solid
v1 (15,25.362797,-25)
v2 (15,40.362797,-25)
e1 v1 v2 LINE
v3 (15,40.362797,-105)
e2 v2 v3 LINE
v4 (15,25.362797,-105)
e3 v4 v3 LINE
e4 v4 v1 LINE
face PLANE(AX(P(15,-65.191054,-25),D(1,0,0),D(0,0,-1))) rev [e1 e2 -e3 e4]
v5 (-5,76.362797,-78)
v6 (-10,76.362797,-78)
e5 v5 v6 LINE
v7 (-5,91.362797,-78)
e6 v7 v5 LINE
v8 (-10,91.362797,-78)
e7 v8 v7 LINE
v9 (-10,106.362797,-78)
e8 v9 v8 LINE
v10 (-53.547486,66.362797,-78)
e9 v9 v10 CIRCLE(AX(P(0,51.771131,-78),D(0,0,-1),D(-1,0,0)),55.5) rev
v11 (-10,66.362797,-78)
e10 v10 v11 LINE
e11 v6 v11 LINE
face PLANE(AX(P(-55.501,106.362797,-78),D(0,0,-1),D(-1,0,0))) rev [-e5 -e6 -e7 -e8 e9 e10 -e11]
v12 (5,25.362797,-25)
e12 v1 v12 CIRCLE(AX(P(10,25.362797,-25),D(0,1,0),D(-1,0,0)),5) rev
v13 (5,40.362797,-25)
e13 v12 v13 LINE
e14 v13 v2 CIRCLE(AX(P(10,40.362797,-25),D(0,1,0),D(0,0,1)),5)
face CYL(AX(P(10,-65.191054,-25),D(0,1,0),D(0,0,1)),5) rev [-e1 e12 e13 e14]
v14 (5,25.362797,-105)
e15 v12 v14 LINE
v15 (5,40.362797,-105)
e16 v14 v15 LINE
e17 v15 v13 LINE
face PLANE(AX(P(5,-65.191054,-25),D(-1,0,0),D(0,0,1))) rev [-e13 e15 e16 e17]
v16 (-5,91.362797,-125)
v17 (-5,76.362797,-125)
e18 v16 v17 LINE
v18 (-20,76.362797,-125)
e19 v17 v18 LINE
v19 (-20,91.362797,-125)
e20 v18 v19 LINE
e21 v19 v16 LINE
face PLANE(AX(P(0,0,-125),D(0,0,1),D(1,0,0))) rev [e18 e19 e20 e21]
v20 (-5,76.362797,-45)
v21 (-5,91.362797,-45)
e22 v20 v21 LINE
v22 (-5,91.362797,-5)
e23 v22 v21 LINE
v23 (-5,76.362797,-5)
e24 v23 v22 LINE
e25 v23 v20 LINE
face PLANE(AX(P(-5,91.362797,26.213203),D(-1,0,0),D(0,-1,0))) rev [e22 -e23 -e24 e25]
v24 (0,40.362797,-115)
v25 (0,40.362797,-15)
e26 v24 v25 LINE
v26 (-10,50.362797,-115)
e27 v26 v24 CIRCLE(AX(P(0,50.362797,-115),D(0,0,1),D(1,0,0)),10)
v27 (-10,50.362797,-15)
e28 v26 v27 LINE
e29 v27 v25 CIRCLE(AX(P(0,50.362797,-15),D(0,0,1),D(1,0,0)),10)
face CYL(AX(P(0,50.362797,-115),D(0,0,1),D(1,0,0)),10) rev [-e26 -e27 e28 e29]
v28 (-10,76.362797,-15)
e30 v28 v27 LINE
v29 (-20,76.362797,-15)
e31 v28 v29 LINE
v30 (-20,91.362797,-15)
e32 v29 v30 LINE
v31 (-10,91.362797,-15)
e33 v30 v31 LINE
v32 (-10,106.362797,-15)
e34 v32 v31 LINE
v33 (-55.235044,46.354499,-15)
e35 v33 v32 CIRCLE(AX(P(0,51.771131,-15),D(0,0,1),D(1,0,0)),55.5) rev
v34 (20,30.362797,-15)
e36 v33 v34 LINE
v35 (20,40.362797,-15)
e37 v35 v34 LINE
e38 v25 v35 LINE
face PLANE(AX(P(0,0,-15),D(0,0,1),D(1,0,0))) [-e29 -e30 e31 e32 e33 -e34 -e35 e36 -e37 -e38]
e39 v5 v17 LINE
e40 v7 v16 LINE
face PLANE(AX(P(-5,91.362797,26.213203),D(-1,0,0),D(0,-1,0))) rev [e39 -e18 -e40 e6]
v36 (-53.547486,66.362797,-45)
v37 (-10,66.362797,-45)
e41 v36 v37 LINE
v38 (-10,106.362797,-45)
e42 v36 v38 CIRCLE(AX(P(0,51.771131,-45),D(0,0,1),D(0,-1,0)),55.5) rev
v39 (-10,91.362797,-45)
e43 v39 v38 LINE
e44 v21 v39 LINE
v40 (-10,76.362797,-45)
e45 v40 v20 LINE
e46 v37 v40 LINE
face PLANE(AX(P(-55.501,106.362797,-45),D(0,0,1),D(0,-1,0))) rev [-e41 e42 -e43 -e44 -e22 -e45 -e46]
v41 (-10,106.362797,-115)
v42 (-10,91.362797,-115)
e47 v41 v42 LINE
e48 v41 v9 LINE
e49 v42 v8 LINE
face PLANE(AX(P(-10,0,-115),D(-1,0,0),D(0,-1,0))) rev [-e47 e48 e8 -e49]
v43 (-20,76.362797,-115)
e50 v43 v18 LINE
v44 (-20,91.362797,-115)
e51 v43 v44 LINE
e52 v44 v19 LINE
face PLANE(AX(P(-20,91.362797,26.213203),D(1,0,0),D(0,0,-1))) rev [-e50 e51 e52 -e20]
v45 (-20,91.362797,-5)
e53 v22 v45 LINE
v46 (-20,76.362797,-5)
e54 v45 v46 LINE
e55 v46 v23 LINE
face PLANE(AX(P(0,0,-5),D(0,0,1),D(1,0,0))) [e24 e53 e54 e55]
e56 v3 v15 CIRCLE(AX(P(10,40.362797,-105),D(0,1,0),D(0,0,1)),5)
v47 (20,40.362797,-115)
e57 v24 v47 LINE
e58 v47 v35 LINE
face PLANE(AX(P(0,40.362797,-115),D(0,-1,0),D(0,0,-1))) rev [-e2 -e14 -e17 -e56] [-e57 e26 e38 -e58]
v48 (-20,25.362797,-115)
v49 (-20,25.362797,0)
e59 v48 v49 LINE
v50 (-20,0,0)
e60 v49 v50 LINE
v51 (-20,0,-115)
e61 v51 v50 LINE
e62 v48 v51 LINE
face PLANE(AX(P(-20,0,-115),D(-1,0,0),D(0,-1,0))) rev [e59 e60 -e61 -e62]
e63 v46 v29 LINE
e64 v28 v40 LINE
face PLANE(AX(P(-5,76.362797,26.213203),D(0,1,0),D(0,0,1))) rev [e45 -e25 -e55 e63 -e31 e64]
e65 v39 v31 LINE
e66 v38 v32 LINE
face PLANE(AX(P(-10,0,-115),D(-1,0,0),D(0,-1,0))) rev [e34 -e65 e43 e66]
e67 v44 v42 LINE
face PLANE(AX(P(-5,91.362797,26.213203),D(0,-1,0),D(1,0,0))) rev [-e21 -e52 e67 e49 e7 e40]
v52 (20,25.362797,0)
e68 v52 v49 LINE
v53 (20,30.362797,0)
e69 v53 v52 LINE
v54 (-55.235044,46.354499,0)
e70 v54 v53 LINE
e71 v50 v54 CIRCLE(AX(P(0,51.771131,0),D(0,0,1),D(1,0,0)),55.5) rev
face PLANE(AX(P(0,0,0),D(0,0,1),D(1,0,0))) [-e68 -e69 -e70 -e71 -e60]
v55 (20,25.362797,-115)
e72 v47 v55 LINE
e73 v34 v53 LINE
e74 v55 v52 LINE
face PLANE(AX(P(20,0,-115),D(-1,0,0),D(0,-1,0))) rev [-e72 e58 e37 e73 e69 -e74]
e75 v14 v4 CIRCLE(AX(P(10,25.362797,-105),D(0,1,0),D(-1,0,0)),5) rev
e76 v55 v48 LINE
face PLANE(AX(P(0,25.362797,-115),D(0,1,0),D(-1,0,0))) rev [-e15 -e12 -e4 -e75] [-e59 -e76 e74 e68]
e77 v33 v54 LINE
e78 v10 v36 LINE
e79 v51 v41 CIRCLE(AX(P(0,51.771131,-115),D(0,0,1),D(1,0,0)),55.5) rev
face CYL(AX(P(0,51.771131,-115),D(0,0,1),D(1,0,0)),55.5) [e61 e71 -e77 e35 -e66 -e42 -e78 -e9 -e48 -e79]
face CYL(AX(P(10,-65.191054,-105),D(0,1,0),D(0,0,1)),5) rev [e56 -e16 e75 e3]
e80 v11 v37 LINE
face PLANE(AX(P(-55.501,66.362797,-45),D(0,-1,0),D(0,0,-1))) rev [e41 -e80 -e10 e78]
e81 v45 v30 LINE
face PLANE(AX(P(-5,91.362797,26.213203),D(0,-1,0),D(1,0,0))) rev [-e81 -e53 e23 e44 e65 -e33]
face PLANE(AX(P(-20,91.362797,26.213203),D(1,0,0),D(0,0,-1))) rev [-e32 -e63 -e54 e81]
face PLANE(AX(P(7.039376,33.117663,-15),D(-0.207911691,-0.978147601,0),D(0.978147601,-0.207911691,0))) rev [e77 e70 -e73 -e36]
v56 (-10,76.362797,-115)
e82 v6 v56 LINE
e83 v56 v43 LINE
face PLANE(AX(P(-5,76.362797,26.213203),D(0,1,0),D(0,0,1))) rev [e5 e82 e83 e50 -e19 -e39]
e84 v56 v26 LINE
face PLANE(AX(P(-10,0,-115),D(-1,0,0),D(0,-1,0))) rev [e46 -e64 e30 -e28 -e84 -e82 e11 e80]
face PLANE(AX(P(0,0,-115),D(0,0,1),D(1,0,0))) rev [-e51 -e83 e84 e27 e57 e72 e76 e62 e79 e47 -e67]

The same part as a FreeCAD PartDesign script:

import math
import FreeCAD as App
import Part
import Sketcher

V = App.Vector
Q = App.Units.Quantity

doc = App.newDocument("Part")
body = doc.addObject("PartDesign::Body", "Body")

# Sketch on XY plane
sketch1 = doc.addObject("Sketcher::SketchObject", "Sketch")
body.addObject(sketch1)
sketch1.AttachmentSupport = (doc.XY_Plane, [""])
sketch1.MapMode = "FlatFace"
sketch1.addGeometry([
    Part.ArcOfCircle(Part.Circle(V(0, 52, 0), V(0, 0, 1), 55), math.radians(100), math.radians(186)),  # 0
    Part.ArcOfCircle(Part.Circle(V(0, 52, 0), V(0, 0, 1), 55), math.radians(-174), math.radians(-111)),  # 1
    Part.LineSegment(V(-20, 0, 0), V(-20, 25, 0)),  # 2
    Part.LineSegment(V(-20, 25, 0), V(20, 25, 0)),  # 3
    Part.LineSegment(V(20, 25, 0), V(20, 40, 0)),  # 4
    Part.LineSegment(V(20, 40, 0), V(0, 40, 0)),  # 5
    Part.ArcOfCircle(Part.Circle(V(0, 50, 0), V(0, 0, 1), 10), math.radians(180), math.radians(270)),  # 6
    Part.LineSegment(V(-10, 50, 0), V(-10, 106, 0)),  # 7
], False)
sketch1.addConstraint([
    Sketcher.Constraint("Tangent", 0, 2, 1, 1),
    Sketcher.Constraint("Coincident", 1, 2, 2, 1),
    Sketcher.Constraint("Coincident", 2, 2, 3, 1),
    Sketcher.Constraint("Coincident", 3, 2, 4, 1),
    Sketcher.Constraint("Coincident", 4, 2, 5, 1),
    Sketcher.Constraint("Tangent", 5, 2, 6, 2),
    Sketcher.Constraint("Tangent", 6, 1, 7, 1),
    Sketcher.Constraint("Coincident", 7, 2, 0, 1),
    Sketcher.Constraint("Vertical", 2),
    Sketcher.Constraint("Horizontal", 3),
    Sketcher.Constraint("Vertical", 4),
    Sketcher.Constraint("Horizontal", 5),
    Sketcher.Constraint("Vertical", 7),
    Sketcher.Constraint("Equal", 0, 1),
    Sketcher.Constraint("PointOnObject", 0, 3, -2),
    Sketcher.Constraint("PointOnObject", 6, 3, -2),
    Sketcher.Constraint("PointOnObject", 1, 2, -1),
    Sketcher.Constraint("Radius", 6, 10.0),
    Sketcher.Constraint("Radius", 0, 55.5),
    Sketcher.Constraint("DistanceX", 3, 1, 3, 2, 40.0),
    Sketcher.Constraint("DistanceX", 5, 2, 5, 1, 20.0),
    Sketcher.Constraint("DistanceY", 4, 1, 4, 2, 15.0),
    Sketcher.Constraint("DistanceY", 7, 1, 7, 2, 56.0),
    Sketcher.Constraint("DistanceY", -1, 1, 0, 2, 46.354499),
])
pad1 = doc.addObject("PartDesign::Pad", "Pad")
body.addObject(pad1)
pad1.Profile = sketch1
pad1.Length = 115
pad1.Reversed = True

# Sketch on XY plane
sketch2 = doc.addObject("Sketcher::SketchObject", "Sketch001")
body.addObject(sketch2)
sketch2.AttachmentSupport = (doc.XY_Plane, [""])
sketch2.MapMode = "FlatFace"
sketch2.addGeometry([
    Part.ArcOfCircle(Part.Circle(V(0, 52, 0), V(0, 0, 1), 55), math.radians(100), math.radians(186)),  # 0
    Part.LineSegment(V(-55, 46, 0), V(20, 30, 0)),  # 1
    Part.LineSegment(V(20, 30, 0), V(20, 40, 0)),  # 2
    Part.LineSegment(V(20, 40, 0), V(0, 40, 0)),  # 3
    Part.ArcOfCircle(Part.Circle(V(0, 50, 0), V(0, 0, 1), 10), math.radians(180), math.radians(270)),  # 4
    Part.LineSegment(V(-10, 50, 0), V(-10, 106, 0)),  # 5
], False)
sketch2.addConstraint([
    Sketcher.Constraint("Coincident", 0, 2, 1, 1),
    Sketcher.Constraint("Coincident", 1, 2, 2, 1),
    Sketcher.Constraint("Coincident", 2, 2, 3, 1),
    Sketcher.Constraint("Tangent", 3, 2, 4, 2),
    Sketcher.Constraint("Tangent", 4, 1, 5, 1),
    Sketcher.Constraint("Coincident", 5, 2, 0, 1),
    Sketcher.Constraint("Vertical", 2),
    Sketcher.Constraint("Horizontal", 3),
    Sketcher.Constraint("Vertical", 5),
    Sketcher.Constraint("PointOnObject", 0, 3, -2),
    Sketcher.Constraint("PointOnObject", 4, 3, -2),
    Sketcher.Constraint("Radius", 4, 10.0),
    Sketcher.Constraint("Radius", 0, 55.5),
    Sketcher.Constraint("DistanceX", 3, 2, 3, 1, 20.0),
    Sketcher.Constraint("DistanceY", 2, 1, 2, 2, 10.0),
    Sketcher.Constraint("DistanceY", 5, 1, 5, 2, 56.0),
    Sketcher.Constraint("Angle", 1, Q("-12 deg")),
    Sketcher.Constraint("DistanceY", -1, 1, 0, 2, 46.354499),
])
pocket1 = doc.addObject("PartDesign::Pocket", "Pocket")
body.addObject(pocket1)
pocket1.Profile = sketch2
pocket1.Length = 15

# Sketch on XY plane
sketch3 = doc.addObject("Sketcher::SketchObject", "Sketch002")
body.addObject(sketch3)
sketch3.AttachmentSupport = (doc.XY_Plane, [""])
sketch3.MapMode = "FlatFace"
sketch3.AttachmentOffset = App.Placement(V(0, 0, -57.5), App.Rotation())
sketch3.addGeometry([
    Part.LineSegment(V(-20, 91, 0), V(-20, 76, 0)),
    Part.LineSegment(V(-20, 76, 0), V(-5, 76, 0)),
    Part.LineSegment(V(-5, 76, 0), V(-5, 91, 0)),
    Part.LineSegment(V(-5, 91, 0), V(-20, 91, 0)),
], False)
sketch3.addConstraint([
    Sketcher.Constraint("Coincident", 0, 2, 1, 1),
    Sketcher.Constraint("Coincident", 1, 2, 2, 1),
    Sketcher.Constraint("Coincident", 2, 2, 3, 1),
    Sketcher.Constraint("Coincident", 3, 2, 0, 1),
    Sketcher.Constraint("Vertical", 0),
    Sketcher.Constraint("Horizontal", 1),
    Sketcher.Constraint("Vertical", 2),
    Sketcher.Constraint("Horizontal", 3),
    Sketcher.Constraint("Equal", 3, 0),
    Sketcher.Constraint("DistanceX", 1, 1, 1, 2, 15.0),
    Sketcher.Constraint("DistanceX", 0, 2, -1, 1, 20.0),
    Sketcher.Constraint("DistanceY", -1, 1, 0, 2, 76.362797),
])
pad2 = doc.addObject("PartDesign::Pad", "Pad001")
body.addObject(pad2)
pad2.Profile = sketch3
pad2.Type = "TwoLengths"
pad2.Length = 52.5
pad2.Length2 = 67.5

# Sketch on YZ plane
sketch4 = doc.addObject("Sketcher::SketchObject", "Sketch003")
body.addObject(sketch4)
sketch4.AttachmentSupport = (doc.YZ_Plane, [""])
sketch4.MapMode = "FlatFace"
sketch4.AttachmentOffset = App.Placement(V(0, 0, -5), App.Rotation())
sketch4.addGeometry([
    Part.LineSegment(V(106, -45, 0), V(66, -45, 0)),
    Part.LineSegment(V(66, -45, 0), V(66, -78, 0)),
    Part.LineSegment(V(66, -78, 0), V(106, -78, 0)),
    Part.LineSegment(V(106, -78, 0), V(106, -45, 0)),
], False)
sketch4.addConstraint([
    Sketcher.Constraint("Coincident", 0, 2, 1, 1),
    Sketcher.Constraint("Coincident", 1, 2, 2, 1),
    Sketcher.Constraint("Coincident", 2, 2, 3, 1),
    Sketcher.Constraint("Coincident", 3, 2, 0, 1),
    Sketcher.Constraint("Horizontal", 0),
    Sketcher.Constraint("Vertical", 1),
    Sketcher.Constraint("Horizontal", 2),
    Sketcher.Constraint("Vertical", 3),
    Sketcher.Constraint("DistanceX", 0, 2, 0, 1, 40.0),
    Sketcher.Constraint("DistanceY", 1, 2, 1, 1, 33.0),
    Sketcher.Constraint("DistanceY", 0, 2, -1, 1, 45.0),
    Sketcher.Constraint("DistanceX", -1, 1, 0, 2, 66.362797),
])
pocket2 = doc.addObject("PartDesign::Pocket", "Pocket001")
body.addObject(pocket2)
pocket2.Profile = sketch4
pocket2.Type = "UpToFirst"

# Sketch on XZ plane
sketch5 = doc.addObject("Sketcher::SketchObject", "Sketch004")
body.addObject(sketch5)
sketch5.AttachmentSupport = (doc.XZ_Plane, [""])
sketch5.MapMode = "FlatFace"
sketch5.AttachmentOffset = App.Placement(V(0, 0, -40.362797), App.Rotation())
sketch5.addGeometry([
    Part.LineSegment(V(5, -105, 0), V(5, -25, 0)),
    Part.ArcOfCircle(Part.Circle(V(10, -25, 0), V(0, 0, 1), 5), math.radians(0), math.radians(180)),
    Part.LineSegment(V(15, -25, 0), V(15, -105, 0)),
    Part.ArcOfCircle(Part.Circle(V(10, -105, 0), V(0, 0, 1), 5), math.radians(180), math.radians(360)),
], False)
sketch5.addConstraint([
    Sketcher.Constraint("Tangent", 0, 2, 1, 2),
    Sketcher.Constraint("Tangent", 1, 1, 2, 1),
    Sketcher.Constraint("Tangent", 2, 2, 3, 2),
    Sketcher.Constraint("Tangent", 3, 1, 0, 1),
    Sketcher.Constraint("Vertical", 0),
    Sketcher.Constraint("Vertical", 2),
    Sketcher.Constraint("Radius", 1, 5.0),
    Sketcher.Constraint("DistanceY", 0, 1, 0, 2, 80.0),
    Sketcher.Constraint("DistanceX", -1, 1, 1, 3, 10.0),
    Sketcher.Constraint("DistanceY", 1, 3, -1, 1, 25.0),
])
pocket3 = doc.addObject("PartDesign::Pocket", "Pocket002")
body.addObject(pocket3)
pocket3.Profile = sketch5
pocket3.Length = 15
pocket3.Reversed = True

doc.recompute()
